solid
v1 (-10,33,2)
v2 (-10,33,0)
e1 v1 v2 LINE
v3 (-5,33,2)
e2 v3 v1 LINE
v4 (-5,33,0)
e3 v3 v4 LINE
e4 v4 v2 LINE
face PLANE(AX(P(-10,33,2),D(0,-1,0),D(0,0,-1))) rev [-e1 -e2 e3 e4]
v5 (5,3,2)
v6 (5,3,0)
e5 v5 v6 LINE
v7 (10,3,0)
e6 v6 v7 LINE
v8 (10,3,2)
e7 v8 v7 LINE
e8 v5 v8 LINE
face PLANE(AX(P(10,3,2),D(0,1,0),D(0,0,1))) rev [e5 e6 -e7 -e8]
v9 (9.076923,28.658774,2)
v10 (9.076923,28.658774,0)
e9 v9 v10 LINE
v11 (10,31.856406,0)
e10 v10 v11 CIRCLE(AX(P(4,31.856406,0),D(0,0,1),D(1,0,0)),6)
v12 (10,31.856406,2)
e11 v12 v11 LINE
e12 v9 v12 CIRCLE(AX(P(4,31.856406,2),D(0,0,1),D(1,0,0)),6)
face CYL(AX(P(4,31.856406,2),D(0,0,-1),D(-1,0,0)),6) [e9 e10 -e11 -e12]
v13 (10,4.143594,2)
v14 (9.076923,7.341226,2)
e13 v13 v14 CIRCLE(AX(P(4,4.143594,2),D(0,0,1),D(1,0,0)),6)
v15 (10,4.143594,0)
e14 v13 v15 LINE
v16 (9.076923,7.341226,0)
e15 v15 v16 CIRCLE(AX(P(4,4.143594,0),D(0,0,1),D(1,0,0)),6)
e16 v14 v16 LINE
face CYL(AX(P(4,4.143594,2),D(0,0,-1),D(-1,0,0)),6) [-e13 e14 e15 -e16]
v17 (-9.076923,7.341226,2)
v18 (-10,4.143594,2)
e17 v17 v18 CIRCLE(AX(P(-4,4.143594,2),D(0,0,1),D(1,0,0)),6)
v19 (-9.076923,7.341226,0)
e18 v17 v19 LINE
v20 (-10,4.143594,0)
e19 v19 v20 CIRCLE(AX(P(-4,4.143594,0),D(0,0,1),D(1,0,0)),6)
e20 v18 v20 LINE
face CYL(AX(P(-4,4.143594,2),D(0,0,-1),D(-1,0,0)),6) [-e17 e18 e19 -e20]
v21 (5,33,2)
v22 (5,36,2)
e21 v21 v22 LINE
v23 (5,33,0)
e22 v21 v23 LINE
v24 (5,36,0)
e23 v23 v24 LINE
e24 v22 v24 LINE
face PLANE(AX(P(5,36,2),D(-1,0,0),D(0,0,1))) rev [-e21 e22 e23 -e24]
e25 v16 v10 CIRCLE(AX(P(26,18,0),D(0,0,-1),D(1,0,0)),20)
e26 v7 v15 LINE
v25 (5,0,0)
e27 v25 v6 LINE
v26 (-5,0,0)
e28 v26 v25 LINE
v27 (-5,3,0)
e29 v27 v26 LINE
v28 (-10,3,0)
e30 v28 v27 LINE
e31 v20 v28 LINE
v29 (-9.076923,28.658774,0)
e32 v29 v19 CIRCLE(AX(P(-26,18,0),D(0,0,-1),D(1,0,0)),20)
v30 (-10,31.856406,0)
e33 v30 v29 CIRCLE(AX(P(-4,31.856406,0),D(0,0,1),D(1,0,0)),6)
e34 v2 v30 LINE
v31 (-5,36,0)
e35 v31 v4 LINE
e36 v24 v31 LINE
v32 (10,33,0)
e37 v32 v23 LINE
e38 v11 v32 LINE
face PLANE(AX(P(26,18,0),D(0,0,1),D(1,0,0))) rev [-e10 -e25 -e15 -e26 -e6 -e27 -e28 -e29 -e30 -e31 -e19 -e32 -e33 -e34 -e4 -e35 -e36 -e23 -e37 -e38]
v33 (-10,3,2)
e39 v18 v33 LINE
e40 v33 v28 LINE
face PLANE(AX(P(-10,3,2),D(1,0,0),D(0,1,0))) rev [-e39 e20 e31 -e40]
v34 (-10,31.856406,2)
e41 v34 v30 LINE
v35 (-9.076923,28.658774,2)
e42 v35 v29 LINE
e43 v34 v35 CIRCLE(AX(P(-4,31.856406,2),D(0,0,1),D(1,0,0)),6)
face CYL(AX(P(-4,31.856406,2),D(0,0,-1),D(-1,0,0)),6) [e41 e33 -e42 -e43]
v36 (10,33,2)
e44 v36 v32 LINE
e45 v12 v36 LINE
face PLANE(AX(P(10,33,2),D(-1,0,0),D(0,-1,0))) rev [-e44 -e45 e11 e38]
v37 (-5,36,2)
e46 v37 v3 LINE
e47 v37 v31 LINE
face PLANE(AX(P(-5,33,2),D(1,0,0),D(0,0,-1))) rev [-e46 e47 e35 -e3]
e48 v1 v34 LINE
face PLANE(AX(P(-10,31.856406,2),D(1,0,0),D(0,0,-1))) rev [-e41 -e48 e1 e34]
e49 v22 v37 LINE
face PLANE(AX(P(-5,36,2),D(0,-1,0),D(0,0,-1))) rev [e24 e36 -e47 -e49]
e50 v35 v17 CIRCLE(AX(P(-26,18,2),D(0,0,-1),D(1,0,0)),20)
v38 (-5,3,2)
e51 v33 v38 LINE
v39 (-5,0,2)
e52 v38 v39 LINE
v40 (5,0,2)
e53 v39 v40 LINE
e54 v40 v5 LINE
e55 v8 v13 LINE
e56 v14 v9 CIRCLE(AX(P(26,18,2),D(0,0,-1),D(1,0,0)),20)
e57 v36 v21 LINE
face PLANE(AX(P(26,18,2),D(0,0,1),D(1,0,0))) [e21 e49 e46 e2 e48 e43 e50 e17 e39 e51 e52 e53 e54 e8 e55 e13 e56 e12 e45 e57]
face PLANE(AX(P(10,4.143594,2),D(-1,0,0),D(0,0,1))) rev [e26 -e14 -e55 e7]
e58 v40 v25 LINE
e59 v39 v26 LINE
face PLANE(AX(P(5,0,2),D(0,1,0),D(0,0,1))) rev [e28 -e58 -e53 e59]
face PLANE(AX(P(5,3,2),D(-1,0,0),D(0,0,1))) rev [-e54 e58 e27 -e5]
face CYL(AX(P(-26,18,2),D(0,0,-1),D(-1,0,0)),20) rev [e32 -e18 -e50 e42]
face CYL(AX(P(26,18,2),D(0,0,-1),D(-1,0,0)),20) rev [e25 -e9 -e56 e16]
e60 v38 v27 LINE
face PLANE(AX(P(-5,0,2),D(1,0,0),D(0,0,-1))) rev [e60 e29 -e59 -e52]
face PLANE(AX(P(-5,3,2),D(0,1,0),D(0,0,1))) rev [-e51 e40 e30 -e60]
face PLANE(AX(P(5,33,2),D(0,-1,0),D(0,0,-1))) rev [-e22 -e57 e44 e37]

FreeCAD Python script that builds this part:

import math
import FreeCAD as App
import Part
import Sketcher
from FreeCAD import Vector
Q = App.Units.Quantity

doc = App.newDocument("Part")
body = doc.addObject("PartDesign::Body", "Body")

# Sketch on XY plane
sketch1 = body.newObject("Sketcher::SketchObject", "Sketch")
sketch1.AttachmentSupport = (doc.getObject("XY_Plane"), [""])
sketch1.MapMode = "FlatFace"
sketch1.addGeometry([
    Part.LineSegment(Vector(-5, 33, 0), Vector(-10, 33, 0)),  # 0
    Part.LineSegment(Vector(-10, 33, 0), Vector(-10, 31.9, 0)),  # 1
    Part.ArcOfCircle(Part.Circle(Vector(-4, 31.9, 0), Vector(0, 0, 1), 6), math.radians(180), math.radians(212)),  # 2
    Part.ArcOfCircle(Part.Circle(Vector(-26, 18, 0), Vector(0, 0, 1), 20), math.radians(-32), math.radians(32)),  # 3
    Part.ArcOfCircle(Part.Circle(Vector(-4, 4.1, 0), Vector(0, 0, 1), 6), math.radians(148), math.radians(180)),  # 4
    Part.LineSegment(Vector(-10, 4.1, 0), Vector(-10, 3, 0)),  # 5
    Part.LineSegment(Vector(-10, 3, 0), Vector(-5, 3, 0)),  # 6
    Part.LineSegment(Vector(-5, 3, 0), Vector(-5, 0, 0)),  # 7
    Part.LineSegment(Vector(-5, 0, 0), Vector(5, 0, 0)),  # 8
    Part.LineSegment(Vector(5, 0, 0), Vector(5, 3, 0)),  # 9
    Part.LineSegment(Vector(5, 3, 0), Vector(10, 3, 0)),  # 10
    Part.LineSegment(Vector(10, 3, 0), Vector(10, 4.1, 0)),  # 11
    Part.ArcOfCircle(Part.Circle(Vector(4, 4.1, 0), Vector(0, 0, 1), 6), math.radians(0), math.radians(32)),  # 12
    Part.ArcOfCircle(Part.Circle(Vector(26, 18, 0), Vector(0, 0, 1), 20), math.radians(148), math.radians(212)),  # 13
    Part.ArcOfCircle(Part.Circle(Vector(4, 31.9, 0), Vector(0, 0, 1), 6), math.radians(-32), math.radians(0)),  # 14
    Part.LineSegment(Vector(10, 31.9, 0), Vector(10, 33, 0)),  # 15
    Part.LineSegment(Vector(10, 33, 0), Vector(5, 33, 0)),  # 16
    Part.LineSegment(Vector(5, 33, 0), Vector(5, 36, 0)),  # 17
    Part.LineSegment(Vector(5, 36, 0), Vector(-5, 36, 0)),  # 18
    Part.LineSegment(Vector(-5, 36, 0), Vector(-5, 33, 0)),  # 19
], False)
sketch1.addConstraint([
    Sketcher.Constraint("Coincident", 0, 2, 1, 1),
    Sketcher.Constraint("Tangent", 1, 2, 2, 1),
    Sketcher.Constraint("Tangent", 2, 2, 3, 2),
    Sketcher.Constraint("Tangent", 3, 1, 4, 1),
    Sketcher.Constraint("Tangent", 4, 2, 5, 1),
    Sketcher.Constraint("Coincident", 5, 2, 6, 1),
    Sketcher.Constraint("Coincident", 6, 2, 7, 1),
    Sketcher.Constraint("Coincident", 7, 2, 8, 1),
    Sketcher.Constraint("Coincident", 8, 2, 9, 1),
    Sketcher.Constraint("Coincident", 9, 2, 10, 1),
    Sketcher.Constraint("Coincident", 10, 2, 11, 1),
    Sketcher.Constraint("Tangent", 11, 2, 12, 1),
    Sketcher.Constraint("Tangent", 12, 2, 13, 2),
    Sketcher.Constraint("Tangent", 13, 1, 14, 1),
    Sketcher.Constraint("Tangent", 14, 2, 15, 1),
    Sketcher.Constraint("Coincident", 15, 2, 16, 1),
    Sketcher.Constraint("Coincident", 16, 2, 17, 1),
    Sketcher.Constraint("Coincident", 17, 2, 18, 1),
    Sketcher.Constraint("Coincident", 18, 2, 19, 1),
    Sketcher.Constraint("Coincident", 19, 2, 0, 1),
    Sketcher.Constraint("Horizontal", 0),
    Sketcher.Constraint("Vertical", 1),
    Sketcher.Constraint("Vertical", 5),
    Sketcher.Constraint("Horizontal", 6),
    Sketcher.Constraint("Vertical", 7),
    Sketcher.Constraint("Horizontal", 8),
    Sketcher.Constraint("Vertical", 9),
    Sketcher.Constraint("Horizontal", 10),
    Sketcher.Constraint("Vertical", 11),
    Sketcher.Constraint("Vertical", 15),
    Sketcher.Constraint("Horizontal", 16),
    Sketcher.Constraint("Vertical", 17),
    Sketcher.Constraint("Horizontal", 18),
    Sketcher.Constraint("Vertical", 19),
    Sketcher.Constraint("Equal", 2, 4),
    Sketcher.Constraint("Equal", 4, 12),
    Sketcher.Constraint("Equal", 3, 13),
    Sketcher.Constraint("Equal", 12, 14),
    Sketcher.Constraint("Symmetric", 7, 2, 8, 2, -1, 1),
    Sketcher.Constraint("Symmetric", 4, 3, 12, 3, -2),
    Sketcher.Constraint("Symmetric", 2, 3, 14, 3, -2),
    Sketcher.Constraint("Symmetric", 16, 2, 19, 2, -2),
    Sketcher.Constraint("Horizontal", 6, 2, 9, 2),
    Sketcher.Constraint("Vertical", 2, 3, 4, 3),
    Sketcher.Constraint("Vertical", 9, 2, 16, 2),
    Sketcher.Constraint("Equal", 1, 5),
    Sketcher.Constraint("Equal", 9, 17),
    Sketcher.Constraint("Radius", 2, Q("6 mm")),
    Sketcher.Constraint("Radius", 3, Q("20 mm")),
    Sketcher.Constraint("DistanceX", 0, 2, 0, 1, Q("5 mm")),
    Sketcher.Constraint("DistanceX", 8, 1, 8, 2, Q("10 mm")),
    Sketcher.Constraint("DistanceY", 7, 2, 7, 1, Q("3 mm")),
    Sketcher.Constraint("DistanceX", 3, 3, -1, 1, Q("26 mm")),
    Sketcher.Constraint("DistanceY", -1, 1, 3, 3, Q("18 mm")),
])
pad1 = body.newObject("PartDesign::Pad", "Pad")
pad1.Profile = sketch1
pad1.Length = 2

doc.recompute()
